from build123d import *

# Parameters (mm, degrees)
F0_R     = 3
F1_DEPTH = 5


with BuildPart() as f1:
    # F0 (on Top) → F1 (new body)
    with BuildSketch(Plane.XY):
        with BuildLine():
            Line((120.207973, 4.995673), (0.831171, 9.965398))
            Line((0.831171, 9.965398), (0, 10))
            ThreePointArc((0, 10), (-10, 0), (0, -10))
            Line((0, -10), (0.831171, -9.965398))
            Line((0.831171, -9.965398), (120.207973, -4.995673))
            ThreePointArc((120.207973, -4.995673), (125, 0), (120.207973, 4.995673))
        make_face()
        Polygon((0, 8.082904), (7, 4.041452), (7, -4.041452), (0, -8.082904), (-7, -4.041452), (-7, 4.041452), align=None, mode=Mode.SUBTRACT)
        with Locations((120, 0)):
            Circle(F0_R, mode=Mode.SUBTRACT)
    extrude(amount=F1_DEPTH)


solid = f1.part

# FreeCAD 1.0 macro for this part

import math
import FreeCAD as App
import Part
import Sketcher
Q = App.Units.Quantity

doc = App.newDocument("Part")
body = doc.addObject("PartDesign::Body", "Body")

sketch1 = doc.addObject("Sketcher::SketchObject", "Sketch")
body.addObject(sketch1)
sketch1.AttachmentSupport = (doc.XY_Plane, [""])
sketch1.MapMode = "FlatFace"
sketch1.addGeometry([
    Part.LineSegment(App.Vector(120.2, 5, 0), App.Vector(0.8, 10, 0)),
    Part.LineSegment(App.Vector(0.8, 10, 0), App.Vector(0, 10, 0)),
    Part.ArcOfCircle(Part.Circle(App.Vector(0, 0, 0), App.Vector(0, 0, 1), 10), math.radians(90), math.radians(270)),
    Part.LineSegment(App.Vector(0, -10, 0), App.Vector(0.8, -10, 0)),
    Part.LineSegment(App.Vector(0.8, -10, 0), App.Vector(120.2, -5, 0)),
    Part.ArcOfCircle(Part.Circle(App.Vector(120, 0, 0), App.Vector(0, 0, 1), 5), math.radians(-88), math.radians(88)),
    Part.LineSegment(App.Vector(-7, 4, 0), App.Vector(0, 8.1, 0)),
    Part.LineSegment(App.Vector(0, 8.1, 0), App.Vector(7, 4, 0)),
    Part.LineSegment(App.Vector(7, 4, 0), App.Vector(7, -4, 0)),
    Part.LineSegment(App.Vector(7, -4, 0), App.Vector(0, -8.1, 0)),
    Part.LineSegment(App.Vector(0, -8.1, 0), App.Vector(-7, -4, 0)),
    Part.LineSegment(App.Vector(-7, -4, 0), App.Vector(-7, 4, 0)),
    Part.Circle(App.Vector(120, 0, 0), App.Vector(0, 0, 1), 3),
], False)
sketch1.addConstraint([
    Sketcher.Constraint("Coincident", 0, 2, 1, 1),
    Sketcher.Constraint("Coincident", 1, 2, 2, 1),
    Sketcher.Constraint("Coincident", 2, 2, 3, 1),
    Sketcher.Constraint("Coincident", 3, 2, 4, 1),
    Sketcher.Constraint("Tangent", 4, 2, 5, 1),
    Sketcher.Constraint("Tangent", 5, 2, 0, 1),
    Sketcher.Constraint("Coincident", 6, 2, 7, 1),
    Sketcher.Constraint("Coincident", 7, 2, 8, 1),
    Sketcher.Constraint("Coincident", 8, 2, 9, 1),
    Sketcher.Constraint("Coincident", 9, 2, 10, 1),
    Sketcher.Constraint("Coincident", 10, 2, 11, 1),
    Sketcher.Constraint("Coincident", 11, 2, 6, 1),
    Sketcher.Constraint("Vertical", 8),
    Sketcher.Constraint("Vertical", 11),
    Sketcher.Constraint("Coincident", 2, 3, -1, 1),
    Sketcher.Constraint("Coincident", 12, 3, 5, 3),
    Sketcher.Constraint("Symmetric", 6, 2, 9, 2, -1, 1),
    Sketcher.Constraint("Symmetric", 7, 2, 10, 2, -1, 1),
    Sketcher.Constraint("Symmetric", 0, 2, 3, 2, -1),
    Sketcher.Constraint("PointOnObject", 5, 3, -1),
    Sketcher.Constraint("PointOnObject", 1, 2, -2),
    Sketcher.Constraint("PointOnObject", 2, 2, -2),
    Sketcher.Constraint("PointOnObject", 6, 2, -2),
    Sketcher.Constraint("Parallel", 0, 1),
    Sketcher.Constraint("Parallel", 6, 9),
    Sketcher.Constraint("Horizontal", 8, 2, 10, 2),
    Sketcher.Constraint("Diameter", 12, 6.0),
    Sketcher.Constraint("Radius", 2, 10.0),
    Sketcher.Constraint("Radius", 5, 5.0),
    Sketcher.Constraint("Angle", 6, Q("30.000001 deg")),
    Sketcher.Constraint("DistanceX", -1, 1, 5, 3, 120.0),
    Sketcher.Constraint("DistanceX", -1, 1, 7, 2, 7.0),
    Sketcher.Constraint("DistanceY", 0, 2, 1, 2, 0.034602),
    Sketcher.Constraint("DistanceY", 3, 2, 6, 2, 18.048302),
])
pad1 = doc.addObject("PartDesign::Pad", "Pad")
body.addObject(pad1)
pad1.Profile = sketch1
pad1.Length = 5

doc.recompute()
